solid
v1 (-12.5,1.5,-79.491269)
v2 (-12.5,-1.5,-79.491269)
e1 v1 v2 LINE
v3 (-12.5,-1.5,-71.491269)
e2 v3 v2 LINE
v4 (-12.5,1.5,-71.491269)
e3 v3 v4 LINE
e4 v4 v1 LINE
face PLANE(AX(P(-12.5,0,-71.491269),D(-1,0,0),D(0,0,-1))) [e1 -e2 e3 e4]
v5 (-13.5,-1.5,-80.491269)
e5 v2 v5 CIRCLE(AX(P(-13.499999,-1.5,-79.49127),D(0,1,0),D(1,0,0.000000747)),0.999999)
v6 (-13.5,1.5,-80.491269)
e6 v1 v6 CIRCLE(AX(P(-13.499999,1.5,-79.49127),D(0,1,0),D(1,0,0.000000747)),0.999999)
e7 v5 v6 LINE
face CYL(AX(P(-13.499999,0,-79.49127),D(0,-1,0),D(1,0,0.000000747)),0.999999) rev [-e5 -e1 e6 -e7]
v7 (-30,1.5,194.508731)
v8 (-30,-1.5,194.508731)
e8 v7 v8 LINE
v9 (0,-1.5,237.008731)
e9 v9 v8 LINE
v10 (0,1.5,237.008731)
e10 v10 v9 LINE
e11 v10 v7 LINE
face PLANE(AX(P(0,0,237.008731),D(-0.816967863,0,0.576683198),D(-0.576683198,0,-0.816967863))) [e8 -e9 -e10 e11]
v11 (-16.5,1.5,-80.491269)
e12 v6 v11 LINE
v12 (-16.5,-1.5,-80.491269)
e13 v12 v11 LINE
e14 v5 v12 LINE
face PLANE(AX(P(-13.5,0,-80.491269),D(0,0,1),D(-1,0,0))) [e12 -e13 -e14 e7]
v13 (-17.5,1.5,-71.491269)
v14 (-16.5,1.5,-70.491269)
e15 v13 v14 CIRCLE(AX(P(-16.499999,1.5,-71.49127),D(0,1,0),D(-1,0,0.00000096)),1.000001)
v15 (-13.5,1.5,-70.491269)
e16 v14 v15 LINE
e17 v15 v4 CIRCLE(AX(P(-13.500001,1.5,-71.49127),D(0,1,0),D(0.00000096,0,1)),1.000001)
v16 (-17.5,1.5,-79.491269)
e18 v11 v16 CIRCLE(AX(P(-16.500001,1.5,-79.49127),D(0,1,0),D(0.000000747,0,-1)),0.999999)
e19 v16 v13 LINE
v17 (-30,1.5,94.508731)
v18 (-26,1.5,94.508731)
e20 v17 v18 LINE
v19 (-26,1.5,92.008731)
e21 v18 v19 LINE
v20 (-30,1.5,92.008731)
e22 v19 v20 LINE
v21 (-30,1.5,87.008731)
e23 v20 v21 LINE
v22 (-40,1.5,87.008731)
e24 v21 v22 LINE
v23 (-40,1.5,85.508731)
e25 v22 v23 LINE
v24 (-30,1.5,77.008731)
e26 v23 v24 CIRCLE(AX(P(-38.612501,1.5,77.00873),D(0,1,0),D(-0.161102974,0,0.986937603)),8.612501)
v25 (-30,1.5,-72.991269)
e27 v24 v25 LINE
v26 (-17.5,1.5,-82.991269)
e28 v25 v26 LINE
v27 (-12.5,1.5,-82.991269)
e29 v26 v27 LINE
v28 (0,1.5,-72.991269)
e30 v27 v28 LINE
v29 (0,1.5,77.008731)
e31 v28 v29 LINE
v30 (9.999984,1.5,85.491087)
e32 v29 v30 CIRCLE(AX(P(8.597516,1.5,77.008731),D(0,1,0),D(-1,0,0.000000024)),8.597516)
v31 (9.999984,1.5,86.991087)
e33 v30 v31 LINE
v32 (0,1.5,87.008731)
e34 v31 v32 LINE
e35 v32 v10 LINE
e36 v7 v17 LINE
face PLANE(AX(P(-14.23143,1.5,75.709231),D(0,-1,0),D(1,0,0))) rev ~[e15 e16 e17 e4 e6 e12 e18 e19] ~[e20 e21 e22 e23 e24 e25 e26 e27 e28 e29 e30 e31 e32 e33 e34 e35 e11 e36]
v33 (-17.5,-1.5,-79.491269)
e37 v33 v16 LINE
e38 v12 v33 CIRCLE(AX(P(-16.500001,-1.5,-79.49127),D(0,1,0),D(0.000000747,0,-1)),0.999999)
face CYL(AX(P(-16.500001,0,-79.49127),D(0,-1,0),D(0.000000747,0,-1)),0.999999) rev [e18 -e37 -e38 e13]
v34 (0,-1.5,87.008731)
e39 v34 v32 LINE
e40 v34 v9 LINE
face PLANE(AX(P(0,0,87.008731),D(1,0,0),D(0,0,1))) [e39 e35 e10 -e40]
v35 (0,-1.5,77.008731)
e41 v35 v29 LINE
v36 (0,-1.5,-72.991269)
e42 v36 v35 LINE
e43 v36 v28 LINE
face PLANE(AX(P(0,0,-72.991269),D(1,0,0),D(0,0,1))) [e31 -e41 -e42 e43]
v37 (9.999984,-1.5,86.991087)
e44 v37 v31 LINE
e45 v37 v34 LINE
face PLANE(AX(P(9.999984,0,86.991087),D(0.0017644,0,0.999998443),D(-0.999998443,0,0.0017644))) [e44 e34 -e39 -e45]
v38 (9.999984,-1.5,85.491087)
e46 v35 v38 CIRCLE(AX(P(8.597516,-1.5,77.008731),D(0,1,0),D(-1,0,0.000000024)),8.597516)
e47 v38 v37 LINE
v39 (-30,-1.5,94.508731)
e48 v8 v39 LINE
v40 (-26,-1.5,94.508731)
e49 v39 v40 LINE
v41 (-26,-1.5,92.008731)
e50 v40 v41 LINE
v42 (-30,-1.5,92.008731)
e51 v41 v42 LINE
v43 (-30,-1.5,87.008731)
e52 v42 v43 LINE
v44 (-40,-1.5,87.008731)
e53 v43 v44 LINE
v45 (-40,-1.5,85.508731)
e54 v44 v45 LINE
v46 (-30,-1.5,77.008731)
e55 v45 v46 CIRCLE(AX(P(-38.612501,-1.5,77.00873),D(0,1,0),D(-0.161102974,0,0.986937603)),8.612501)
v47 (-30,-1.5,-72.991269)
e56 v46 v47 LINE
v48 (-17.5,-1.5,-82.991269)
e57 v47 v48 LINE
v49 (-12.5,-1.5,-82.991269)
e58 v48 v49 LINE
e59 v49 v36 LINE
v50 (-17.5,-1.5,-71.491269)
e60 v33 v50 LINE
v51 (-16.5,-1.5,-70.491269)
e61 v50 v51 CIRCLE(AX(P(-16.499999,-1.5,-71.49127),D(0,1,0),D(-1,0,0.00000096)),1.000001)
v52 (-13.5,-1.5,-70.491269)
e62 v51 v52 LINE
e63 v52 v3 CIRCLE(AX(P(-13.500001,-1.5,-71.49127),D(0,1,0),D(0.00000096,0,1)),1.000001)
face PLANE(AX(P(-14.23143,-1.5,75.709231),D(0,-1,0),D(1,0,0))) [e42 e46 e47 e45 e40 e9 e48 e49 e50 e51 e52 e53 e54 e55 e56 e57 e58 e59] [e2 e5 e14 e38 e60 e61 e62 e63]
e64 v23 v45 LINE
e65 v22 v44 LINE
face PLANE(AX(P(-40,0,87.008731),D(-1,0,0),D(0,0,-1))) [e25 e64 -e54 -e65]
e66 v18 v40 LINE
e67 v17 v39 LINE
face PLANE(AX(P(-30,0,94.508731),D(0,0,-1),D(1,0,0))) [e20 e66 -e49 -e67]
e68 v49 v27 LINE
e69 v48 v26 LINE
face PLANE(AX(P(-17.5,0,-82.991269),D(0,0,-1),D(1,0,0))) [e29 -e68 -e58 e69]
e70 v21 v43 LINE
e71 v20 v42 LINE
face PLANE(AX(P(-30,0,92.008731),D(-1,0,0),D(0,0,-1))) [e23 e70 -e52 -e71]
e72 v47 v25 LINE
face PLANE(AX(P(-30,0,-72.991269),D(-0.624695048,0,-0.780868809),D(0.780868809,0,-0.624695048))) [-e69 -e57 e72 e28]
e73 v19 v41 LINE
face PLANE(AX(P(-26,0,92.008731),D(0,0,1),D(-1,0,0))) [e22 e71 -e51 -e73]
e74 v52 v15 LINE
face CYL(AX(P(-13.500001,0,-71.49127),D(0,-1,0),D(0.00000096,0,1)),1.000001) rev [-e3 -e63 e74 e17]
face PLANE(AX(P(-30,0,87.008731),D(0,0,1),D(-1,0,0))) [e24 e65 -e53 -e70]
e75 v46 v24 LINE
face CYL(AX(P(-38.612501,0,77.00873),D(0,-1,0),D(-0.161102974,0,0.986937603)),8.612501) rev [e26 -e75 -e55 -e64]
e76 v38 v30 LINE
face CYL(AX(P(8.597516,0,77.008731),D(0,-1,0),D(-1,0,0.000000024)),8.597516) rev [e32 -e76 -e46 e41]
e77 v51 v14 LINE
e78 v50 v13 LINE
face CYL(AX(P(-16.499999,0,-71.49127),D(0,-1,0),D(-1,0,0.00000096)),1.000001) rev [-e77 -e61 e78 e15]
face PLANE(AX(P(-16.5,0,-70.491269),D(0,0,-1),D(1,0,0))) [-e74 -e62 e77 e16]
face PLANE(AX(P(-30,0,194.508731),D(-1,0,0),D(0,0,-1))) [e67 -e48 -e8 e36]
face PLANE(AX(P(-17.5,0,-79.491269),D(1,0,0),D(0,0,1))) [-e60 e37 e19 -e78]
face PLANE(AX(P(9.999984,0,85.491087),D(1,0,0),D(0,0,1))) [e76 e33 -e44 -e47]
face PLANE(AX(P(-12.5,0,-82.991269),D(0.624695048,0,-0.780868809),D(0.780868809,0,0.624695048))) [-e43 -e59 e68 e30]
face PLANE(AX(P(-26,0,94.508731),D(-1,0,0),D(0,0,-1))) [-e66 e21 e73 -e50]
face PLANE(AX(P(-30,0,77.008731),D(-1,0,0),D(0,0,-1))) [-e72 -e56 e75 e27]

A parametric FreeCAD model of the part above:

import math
import FreeCAD as App
import Part
import Sketcher

V = App.Vector
Q = App.Units.Quantity

doc = App.newDocument("Part")
body = doc.addObject("PartDesign::Body", "Body")

# Sketch on XZ plane
sketch1 = body.newObject("Sketcher::SketchObject", "Sketch")
sketch1.AttachmentSupport = (doc.getObject("XZ_Plane"), [""])
sketch1.MapMode = "FlatFace"
sketch1.addGeometry([
    Part.LineSegment(V(0, 87, 0), V(0, 237, 0)),  # 0
    Part.LineSegment(V(0, 237, 0), V(-30, 194.5, 0)),  # 1
    Part.LineSegment(V(-30, 194.5, 0), V(-30, 94.5, 0)),  # 2
    Part.LineSegment(V(-30, 94.5, 0), V(-26, 94.5, 0)),  # 3
    Part.LineSegment(V(-26, 94.5, 0), V(-26, 92, 0)),  # 4
    Part.LineSegment(V(-26, 92, 0), V(-30, 92, 0)),  # 5
    Part.LineSegment(V(-30, 92, 0), V(-30, 87, 0)),  # 6
    Part.LineSegment(V(-30, 87, 0), V(-40, 87, 0)),  # 7
    Part.LineSegment(V(-40, 87, 0), V(-40, 85.5, 0)),  # 8
    Part.ArcOfCircle(Part.Circle(V(-38.6, 77, 0), V(0, 0, 1), 8.6), math.radians(0), math.radians(99)),  # 9
    Part.LineSegment(V(-30, 77, 0), V(-30, -73, 0)),  # 10
    Part.LineSegment(V(-30, -73, 0), V(-17.5, -83, 0)),  # 11
    Part.LineSegment(V(-17.5, -83, 0), V(-12.5, -83, 0)),  # 12
    Part.LineSegment(V(-12.5, -83, 0), V(0, -73, 0)),  # 13
    Part.LineSegment(V(0, -73, 0), V(0, 77, 0)),  # 14
    Part.ArcOfCircle(Part.Circle(V(8.6, 77, 0), V(0, 0, 1), 8.6), math.radians(81), math.radians(180)),  # 15
    Part.LineSegment(V(10, 85.5, 0), V(10, 87, 0)),  # 16
    Part.LineSegment(V(10, 87, 0), V(0, 87, 0)),  # 17
    Part.LineSegment(V(-12.5, -71.5, 0), V(-12.5, -79.5, 0)),  # 18
    Part.ArcOfCircle(Part.Circle(V(-13.5, -79.5, 0), V(0, 0, 1), 1), math.radians(-90), math.radians(0)),  # 19
    Part.LineSegment(V(-13.5, -80.5, 0), V(-16.5, -80.5, 0)),  # 20
    Part.ArcOfCircle(Part.Circle(V(-16.5, -79.5, 0), V(0, 0, 1), 1), math.radians(180), math.radians(270)),  # 21
    Part.LineSegment(V(-17.5, -79.5, 0), V(-17.5, -71.5, 0)),  # 22
    Part.ArcOfCircle(Part.Circle(V(-16.5, -71.5, 0), V(0, 0, 1), 1), math.radians(90), math.radians(180)),  # 23
    Part.LineSegment(V(-16.5, -70.5, 0), V(-13.5, -70.5, 0)),  # 24
    Part.ArcOfCircle(Part.Circle(V(-13.5, -71.5, 0), V(0, 0, 1), 1), math.radians(0), math.radians(90)),  # 25
], False)
sketch1.addConstraint([
    Sketcher.Constraint("Coincident", 0, 2, 1, 1),
    Sketcher.Constraint("Coincident", 1, 2, 2, 1),
    Sketcher.Constraint("Coincident", 2, 2, 3, 1),
    Sketcher.Constraint("Coincident", 3, 2, 4, 1),
    Sketcher.Constraint("Coincident", 4, 2, 5, 1),
    Sketcher.Constraint("Coincident", 5, 2, 6, 1),
    Sketcher.Constraint("Coincident", 6, 2, 7, 1),
    Sketcher.Constraint("Coincident", 7, 2, 8, 1),
    Sketcher.Constraint("Coincident", 8, 2, 9, 2),
    Sketcher.Constraint("Tangent", 9, 1, 10, 1),
    Sketcher.Constraint("Coincident", 10, 2, 11, 1),
    Sketcher.Constraint("Coincident", 11, 2, 12, 1),
    Sketcher.Constraint("Coincident", 12, 2, 13, 1),
    Sketcher.Constraint("Coincident", 13, 2, 14, 1),
    Sketcher.Constraint("Tangent", 14, 2, 15, 2),
    Sketcher.Constraint("Coincident", 15, 1, 16, 1),
    Sketcher.Constraint("Coincident", 16, 2, 17, 1),
    Sketcher.Constraint("Coincident", 17, 2, 0, 1),
    Sketcher.Constraint("Tangent", 18, 2, 19, 2),
    Sketcher.Constraint("Tangent", 19, 1, 20, 1),
    Sketcher.Constraint("Tangent", 20, 2, 21, 2),
    Sketcher.Constraint("Tangent", 21, 1, 22, 1),
    Sketcher.Constraint("Tangent", 22, 2, 23, 2),
    Sketcher.Constraint("Tangent", 23, 1, 24, 1),
    Sketcher.Constraint("Tangent", 24, 2, 25, 2),
    Sketcher.Constraint("Tangent", 25, 1, 18, 1),
    Sketcher.Constraint("Vertical", 0),
    Sketcher.Constraint("Vertical", 2),
    Sketcher.Constraint("Horizontal", 3),
    Sketcher.Constraint("Vertical", 4),
    Sketcher.Constraint("Horizontal", 5),
    Sketcher.Constraint("Vertical", 6),
    Sketcher.Constraint("Horizontal", 7),
    Sketcher.Constraint("Vertical", 8),
    Sketcher.Constraint("Vertical", 10),
    Sketcher.Constraint("Horizontal", 12),
    Sketcher.Constraint("Vertical", 14),
    Sketcher.Constraint("Vertical", 16),
    Sketcher.Constraint("Vertical", 18),
    Sketcher.Constraint("Horizontal", 20),
    Sketcher.Constraint("Vertical", 22),
    Sketcher.Constraint("Horizontal", 24),
    Sketcher.Constraint("Equal", 19, 21),
    Sketcher.Constraint("Equal", 21, 23),
    Sketcher.Constraint("Equal", 23, 25),
    Sketcher.Constraint("PointOnObject", 0, 2, -2),
    Sketcher.Constraint("PointOnObject", 13, 2, -2),
    Sketcher.Constraint("Horizontal", 9, 3, 15, 3),
    Sketcher.Constraint("Horizontal", 10, 2, 13, 2),
    Sketcher.Constraint("Horizontal", 7, 2, 17, 2),
    Sketcher.Constraint("Vertical", 2, 2, 5, 2),
    Sketcher.Constraint("Vertical", 6, 2, 9, 1),
    Sketcher.Constraint("Vertical", 12, 2, 18, 2),
    Sketcher.Constraint("Vertical", 11, 2, 21, 1),
    Sketcher.Constraint("Equal", 12, 6),
    Sketcher.Constraint("Equal", 0, 10),
    Sketcher.Constraint("Equal", 8, 16),
    Sketcher.Constraint("Equal", 11, 13),
    Sketcher.Constraint("Radius", 19, Q("0.999999 mm")),
    Sketcher.Constraint("DistanceX", 3, 1, 3, 2, Q("4 mm")),
    Sketcher.Constraint("DistanceX", 7, 2, 7, 1, Q("10 mm")),
    Sketcher.Constraint("DistanceX", 12, 1, 12, 2, Q("5 mm")),
    Sketcher.Constraint("DistanceY", 0, 1, 0, 2, Q("150 mm")),
    Sketcher.Constraint("DistanceY", 2, 2, 2, 1, Q("100 mm")),
    Sketcher.Constraint("DistanceY", 18, 2, 18, 1, Q("8 mm")),
    Sketcher.Constraint("Distance", 17, Q("10 mm")),
    Sketcher.Constraint("DistanceY", 4, 2, 4, 1, Q("2.5 mm")),
    Sketcher.Constraint("DistanceY", 8, 2, 8, 1, Q("1.5 mm")),
    Sketcher.Constraint("DistanceX", 1, 2, -1, 1, Q("30 mm")),
    Sketcher.Constraint("DistanceY", 15, 3, 0, 2, Q("160 mm")),
    Sketcher.Constraint("DistanceY", 23, 3, 1, 2, Q("266.000001 mm")),
    Sketcher.Constraint("DistanceY", 11, 2, 10, 2, Q("10 mm")),
    Sketcher.Constraint("Radius", 15, Q("8.597516 mm")),
    Sketcher.Constraint("DistanceY", -1, 1, 9, 3, Q("77.00873 mm")),
])
pad1 = body.newObject("PartDesign::Pad", "Pad")
pad1.Profile = sketch1
pad1.Length = 3
pad1.Midplane = True

doc.recompute()
